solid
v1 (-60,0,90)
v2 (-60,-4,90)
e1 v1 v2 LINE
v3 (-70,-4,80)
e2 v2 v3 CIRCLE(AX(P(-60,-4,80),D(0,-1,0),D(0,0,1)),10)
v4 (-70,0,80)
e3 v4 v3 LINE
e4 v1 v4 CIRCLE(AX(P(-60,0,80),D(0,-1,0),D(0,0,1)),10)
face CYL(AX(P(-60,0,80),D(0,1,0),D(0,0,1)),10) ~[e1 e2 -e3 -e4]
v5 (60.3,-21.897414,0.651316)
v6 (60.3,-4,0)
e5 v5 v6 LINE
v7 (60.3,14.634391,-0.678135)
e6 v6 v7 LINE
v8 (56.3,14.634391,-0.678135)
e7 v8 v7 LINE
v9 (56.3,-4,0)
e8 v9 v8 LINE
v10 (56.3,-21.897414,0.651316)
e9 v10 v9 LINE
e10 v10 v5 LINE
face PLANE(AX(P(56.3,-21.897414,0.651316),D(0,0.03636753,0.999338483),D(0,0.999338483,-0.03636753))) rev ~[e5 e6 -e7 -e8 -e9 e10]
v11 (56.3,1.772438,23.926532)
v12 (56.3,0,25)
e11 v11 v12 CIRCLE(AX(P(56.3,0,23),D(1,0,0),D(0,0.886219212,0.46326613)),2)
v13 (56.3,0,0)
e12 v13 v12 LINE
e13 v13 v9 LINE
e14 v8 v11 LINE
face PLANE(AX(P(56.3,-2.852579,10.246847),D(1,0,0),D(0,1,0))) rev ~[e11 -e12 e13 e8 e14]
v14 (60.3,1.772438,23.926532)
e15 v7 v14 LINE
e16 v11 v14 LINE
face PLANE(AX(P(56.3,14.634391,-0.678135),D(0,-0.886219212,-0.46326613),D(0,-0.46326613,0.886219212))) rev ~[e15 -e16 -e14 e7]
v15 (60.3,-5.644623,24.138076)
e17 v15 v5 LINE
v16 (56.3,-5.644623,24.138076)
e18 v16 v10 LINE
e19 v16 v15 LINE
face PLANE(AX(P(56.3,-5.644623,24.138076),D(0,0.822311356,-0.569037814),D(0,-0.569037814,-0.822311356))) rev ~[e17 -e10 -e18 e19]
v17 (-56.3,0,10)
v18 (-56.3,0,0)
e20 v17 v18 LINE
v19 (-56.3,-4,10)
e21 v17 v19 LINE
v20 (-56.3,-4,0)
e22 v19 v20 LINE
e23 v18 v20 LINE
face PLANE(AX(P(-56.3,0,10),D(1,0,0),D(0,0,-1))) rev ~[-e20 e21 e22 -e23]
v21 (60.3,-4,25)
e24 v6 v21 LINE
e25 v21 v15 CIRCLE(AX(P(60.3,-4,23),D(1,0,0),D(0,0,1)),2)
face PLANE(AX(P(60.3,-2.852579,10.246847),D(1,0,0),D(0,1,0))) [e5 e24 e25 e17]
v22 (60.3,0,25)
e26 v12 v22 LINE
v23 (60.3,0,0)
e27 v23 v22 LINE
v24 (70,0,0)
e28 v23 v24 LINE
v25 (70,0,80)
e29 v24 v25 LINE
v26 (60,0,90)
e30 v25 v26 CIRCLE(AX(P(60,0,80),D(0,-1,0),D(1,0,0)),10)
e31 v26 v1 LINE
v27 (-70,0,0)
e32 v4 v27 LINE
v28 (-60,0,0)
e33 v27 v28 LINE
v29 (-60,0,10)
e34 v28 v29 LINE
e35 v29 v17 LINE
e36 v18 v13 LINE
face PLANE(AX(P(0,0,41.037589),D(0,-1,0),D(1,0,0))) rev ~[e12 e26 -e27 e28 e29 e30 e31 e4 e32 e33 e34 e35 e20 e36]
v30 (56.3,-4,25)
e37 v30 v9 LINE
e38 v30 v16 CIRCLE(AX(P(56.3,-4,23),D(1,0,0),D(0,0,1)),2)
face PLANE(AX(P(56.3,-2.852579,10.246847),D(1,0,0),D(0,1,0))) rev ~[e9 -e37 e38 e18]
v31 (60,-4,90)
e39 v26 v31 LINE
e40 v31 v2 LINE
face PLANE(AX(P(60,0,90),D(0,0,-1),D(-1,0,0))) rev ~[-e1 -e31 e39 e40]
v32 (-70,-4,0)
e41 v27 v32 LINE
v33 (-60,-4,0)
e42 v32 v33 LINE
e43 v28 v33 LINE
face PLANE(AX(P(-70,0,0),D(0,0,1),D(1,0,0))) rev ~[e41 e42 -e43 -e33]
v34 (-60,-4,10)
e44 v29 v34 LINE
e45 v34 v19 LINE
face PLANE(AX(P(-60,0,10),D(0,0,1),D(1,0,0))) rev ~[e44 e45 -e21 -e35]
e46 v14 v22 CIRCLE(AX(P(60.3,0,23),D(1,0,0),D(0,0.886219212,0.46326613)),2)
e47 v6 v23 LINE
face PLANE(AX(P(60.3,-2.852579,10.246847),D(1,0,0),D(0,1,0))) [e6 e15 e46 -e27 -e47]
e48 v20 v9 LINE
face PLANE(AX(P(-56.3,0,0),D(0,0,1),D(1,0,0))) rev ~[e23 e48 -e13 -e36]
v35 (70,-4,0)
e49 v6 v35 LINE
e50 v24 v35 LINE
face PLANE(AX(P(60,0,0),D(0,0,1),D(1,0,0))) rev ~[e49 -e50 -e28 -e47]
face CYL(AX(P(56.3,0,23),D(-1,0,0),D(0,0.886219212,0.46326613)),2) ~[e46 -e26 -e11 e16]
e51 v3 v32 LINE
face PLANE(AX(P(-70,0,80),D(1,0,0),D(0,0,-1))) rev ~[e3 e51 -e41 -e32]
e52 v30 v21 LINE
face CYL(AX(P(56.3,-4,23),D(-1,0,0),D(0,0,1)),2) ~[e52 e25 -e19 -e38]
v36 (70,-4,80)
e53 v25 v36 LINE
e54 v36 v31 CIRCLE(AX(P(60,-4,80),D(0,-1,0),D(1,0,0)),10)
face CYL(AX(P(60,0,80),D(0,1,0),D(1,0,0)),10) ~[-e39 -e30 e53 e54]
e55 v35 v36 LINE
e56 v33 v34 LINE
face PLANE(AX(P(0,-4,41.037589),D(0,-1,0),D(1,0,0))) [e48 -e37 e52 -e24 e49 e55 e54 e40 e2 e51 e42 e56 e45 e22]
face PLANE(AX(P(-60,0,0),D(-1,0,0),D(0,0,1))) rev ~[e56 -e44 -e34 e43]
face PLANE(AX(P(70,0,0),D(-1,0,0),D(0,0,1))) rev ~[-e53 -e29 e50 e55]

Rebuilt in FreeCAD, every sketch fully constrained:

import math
import FreeCAD as App
import Part
import Sketcher

V = App.Vector
Q = App.Units.Quantity

doc = App.newDocument("Part")
body = doc.addObject("PartDesign::Body", "Body")

sketch1 = body.newObject("Sketcher::SketchObject", "Sketch")
sketch1.AttachmentSupport = (doc.getObject("XZ_Plane"), [""])
sketch1.MapMode = "FlatFace"
sketch1.addGeometry(Part.LineSegment(V(60, 90, 0), V(-60, 90, 0)), False)
sketch1.addGeometry(Part.ArcOfCircle(Part.Circle(V(-60, 80, 0), V(0, 0, 1), 10), math.radians(90), math.radians(180)), False)
sketch1.addGeometry(Part.LineSegment(V(-70, 80, 0), V(-70, 0, 0)), False)
sketch1.addGeometry(Part.LineSegment(V(-70, 0, 0), V(-60, 0, 0)), False)
sketch1.addGeometry(Part.LineSegment(V(-60, 0, 0), V(-60, 10, 0)), False)
sketch1.addGeometry(Part.LineSegment(V(-60, 10, 0), V(-56.3, 10, 0)), False)
sketch1.addGeometry(Part.LineSegment(V(-56.3, 10, 0), V(-56.3, 0, 0)), False)
sketch1.addGeometry(Part.LineSegment(V(-56.3, 0, 0), V(56.3, 0, 0)), False)
sketch1.addGeometry(Part.LineSegment(V(56.3, 0, 0), V(56.3, 10, 0)), False)
sketch1.addGeometry(Part.LineSegment(V(56.3, 10, 0), V(60, 10, 0)), False)
sketch1.addGeometry(Part.LineSegment(V(60, 10, 0), V(60, 0, 0)), False)
sketch1.addGeometry(Part.LineSegment(V(60, 0, 0), V(70, 0, 0)), False)
sketch1.addGeometry(Part.LineSegment(V(70, 0, 0), V(70, 80, 0)), False)
sketch1.addGeometry(Part.ArcOfCircle(Part.Circle(V(60, 80, 0), V(0, 0, 1), 10), math.radians(0), math.radians(90)), False)
sketch1.addConstraint(Sketcher.Constraint("Tangent", 0, 2, 1, 1))
sketch1.addConstraint(Sketcher.Constraint("Tangent", 1, 2, 2, 1))
sketch1.addConstraint(Sketcher.Constraint("Coincident", 2, 2, 3, 1))
sketch1.addConstraint(Sketcher.Constraint("Coincident", 3, 2, 4, 1))
sketch1.addConstraint(Sketcher.Constraint("Coincident", 4, 2, 5, 1))
sketch1.addConstraint(Sketcher.Constraint("Coincident", 5, 2, 6, 1))
sketch1.addConstraint(Sketcher.Constraint("Coincident", 6, 2, 7, 1))
sketch1.addConstraint(Sketcher.Constraint("Coincident", 7, 2, 8, 1))
sketch1.addConstraint(Sketcher.Constraint("Coincident", 8, 2, 9, 1))
sketch1.addConstraint(Sketcher.Constraint("Coincident", 9, 2, 10, 1))
sketch1.addConstraint(Sketcher.Constraint("Coincident", 10, 2, 11, 1))
sketch1.addConstraint(Sketcher.Constraint("Coincident", 11, 2, 12, 1))
sketch1.addConstraint(Sketcher.Constraint("Tangent", 12, 2, 13, 1))
sketch1.addConstraint(Sketcher.Constraint("Tangent", 13, 2, 0, 1))
sketch1.addConstraint(Sketcher.Constraint("Horizontal", 0))
sketch1.addConstraint(Sketcher.Constraint("Vertical", 2))
sketch1.addConstraint(Sketcher.Constraint("Horizontal", 3))
sketch1.addConstraint(Sketcher.Constraint("Vertical", 4))
sketch1.addConstraint(Sketcher.Constraint("Horizontal", 5))
sketch1.addConstraint(Sketcher.Constraint("Vertical", 6))
sketch1.addConstraint(Sketcher.Constraint("Horizontal", 7))
sketch1.addConstraint(Sketcher.Constraint("Vertical", 8))
sketch1.addConstraint(Sketcher.Constraint("Horizontal", 9))
sketch1.addConstraint(Sketcher.Constraint("Vertical", 10))
sketch1.addConstraint(Sketcher.Constraint("Horizontal", 11))
sketch1.addConstraint(Sketcher.Constraint("Vertical", 12))
sketch1.addConstraint(Sketcher.Constraint("Equal", 1, 13))
sketch1.addConstraint(Sketcher.Constraint("Symmetric", 6, 2, 7, 2, -1, 1))
sketch1.addConstraint(Sketcher.Constraint("Symmetric", 3, 2, 10, 2, -1, 1))
sketch1.addConstraint(Sketcher.Constraint("Symmetric", 2, 2, 11, 2, -2))
sketch1.addConstraint(Sketcher.Constraint("Horizontal", 5, 2, 8, 2))
sketch1.addConstraint(Sketcher.Constraint("Vertical", 0, 2, 3, 2))
sketch1.addConstraint(Sketcher.Constraint("Equal", 11, 4))
sketch1.addConstraint(Sketcher.Constraint("Radius", 1, Q("10 mm")))
sketch1.addConstraint(Sketcher.Constraint("DistanceX", 0, 2, 0, 1, Q("120 mm")))
sketch1.addConstraint(Sketcher.Constraint("DistanceY", 2, 2, 2, 1, Q("80 mm")))
sketch1.addConstraint(Sketcher.Constraint("DistanceX", 5, 1, 5, 2, Q("3.7 mm")))
pad1 = body.newObject("PartDesign::Pad", "Pad")
pad1.Profile = sketch1
pad1.Length = 4

sketch2 = body.newObject("Sketcher::SketchObject", "Sketch001")
sketch2.AttachmentSupport = (doc.getObject("YZ_Plane"), [""])
sketch2.MapMode = "FlatFace"
sketch2.AttachmentOffset = App.Placement(V(0, 0, 56.3), App.Rotation())
sketch2.addGeometry(Part.LineSegment(V(0, 25, 0), V(0, 10, 0)), False)
sketch2.addGeometry(Part.LineSegment(V(0, 10, 0), V(-4, 10, 0)), False)
sketch2.addGeometry(Part.LineSegment(V(-4, 10, 0), V(-4, 25, 0)), False)
sketch2.addGeometry(Part.ArcOfCircle(Part.Circle(V(-4, 23, 0), V(0, 0, 1), 2), math.radians(90), math.radians(145.316843)), False)
sketch2.addGeometry(Part.LineSegment(V(-5.644623, 24.138076, 0), V(-21.897414, 0.651316, 0)), False)
sketch2.addGeometry(Part.LineSegment(V(-21.897414, 0.651316, 0), V(14.634391, -0.678135, 0)), False)
sketch2.addGeometry(Part.LineSegment(V(14.634391, -0.678135, 0), V(1.772438, 23.926532, 0)), False)
sketch2.addGeometry(Part.ArcOfCircle(Part.Circle(V(0, 23, 0), V(0, 0, 1), 2), math.radians(27.598067), math.radians(90)), False)
sketch2.addConstraint(Sketcher.Constraint("Coincident", 0, 2, 1, 1))
sketch2.addConstraint(Sketcher.Constraint("Coincident", 1, 2, 2, 1))
sketch2.addConstraint(Sketcher.Constraint("Coincident", 2, 2, 3, 1))
sketch2.addConstraint(Sketcher.Constraint("Coincident", 3, 2, 4, 1))
sketch2.addConstraint(Sketcher.Constraint("Coincident", 4, 2, 5, 1))
sketch2.addConstraint(Sketcher.Constraint("Coincident", 5, 2, 6, 1))
sketch2.addConstraint(Sketcher.Constraint("Coincident", 6, 2, 7, 1))
sketch2.addConstraint(Sketcher.Constraint("Coincident", 7, 2, 0, 1))
sketch2.addConstraint(Sketcher.Constraint("Vertical", 0))
sketch2.addConstraint(Sketcher.Constraint("Horizontal", 1))
sketch2.addConstraint(Sketcher.Constraint("Vertical", 2))
sketch2.addConstraint(Sketcher.Constraint("PointOnObject", 7, 3, -2))
sketch2.addConstraint(Sketcher.Constraint("PointOnObject", 0, 2, -2))
sketch2.addConstraint(Sketcher.Constraint("Radius", 3, Q("2 mm")))
sketch2.addConstraint(Sketcher.Constraint("Radius", 7, Q("2 mm")))
sketch2.addConstraint(Sketcher.Constraint("DistanceX", 1, 2, 1, 1, Q("4 mm")))
sketch2.addConstraint(Sketcher.Constraint("DistanceY", 0, 2, 0, 1, Q("15 mm")))
sketch2.addConstraint(Sketcher.Constraint("DistanceY", 2, 1, 2, 2, Q("15 mm")))
sketch2.addConstraint(Sketcher.Constraint("DistanceX", 3, 3, -1, 1, Q("4 mm")))
sketch2.addConstraint(Sketcher.Constraint("DistanceY", -1, 1, 3, 3, Q("23 mm")))
sketch2.addConstraint(Sketcher.Constraint("DistanceX", -1, 1, 5, 2, Q("14.634391 mm")))
sketch2.addConstraint(Sketcher.Constraint("DistanceX", -1, 1, 6, 2, Q("1.772438 mm")))
sketch2.addConstraint(Sketcher.Constraint("DistanceX", 4, 2, 3, 2, Q("16.252791 mm")))
sketch2.addConstraint(Sketcher.Constraint("DistanceY", 4, 2, 3, 2, Q("23.48676 mm")))
sketch2.addConstraint(Sketcher.Constraint("DistanceX", 3, 2, 6, 2, Q("7.417061 mm")))
sketch2.addConstraint(Sketcher.Constraint("Distance", 5, Q("36.555987 mm")))
pad2 = body.newObject("PartDesign::Pad", "Pad001")
pad2.Profile = sketch2
pad2.Length = 4

doc.recompute()
